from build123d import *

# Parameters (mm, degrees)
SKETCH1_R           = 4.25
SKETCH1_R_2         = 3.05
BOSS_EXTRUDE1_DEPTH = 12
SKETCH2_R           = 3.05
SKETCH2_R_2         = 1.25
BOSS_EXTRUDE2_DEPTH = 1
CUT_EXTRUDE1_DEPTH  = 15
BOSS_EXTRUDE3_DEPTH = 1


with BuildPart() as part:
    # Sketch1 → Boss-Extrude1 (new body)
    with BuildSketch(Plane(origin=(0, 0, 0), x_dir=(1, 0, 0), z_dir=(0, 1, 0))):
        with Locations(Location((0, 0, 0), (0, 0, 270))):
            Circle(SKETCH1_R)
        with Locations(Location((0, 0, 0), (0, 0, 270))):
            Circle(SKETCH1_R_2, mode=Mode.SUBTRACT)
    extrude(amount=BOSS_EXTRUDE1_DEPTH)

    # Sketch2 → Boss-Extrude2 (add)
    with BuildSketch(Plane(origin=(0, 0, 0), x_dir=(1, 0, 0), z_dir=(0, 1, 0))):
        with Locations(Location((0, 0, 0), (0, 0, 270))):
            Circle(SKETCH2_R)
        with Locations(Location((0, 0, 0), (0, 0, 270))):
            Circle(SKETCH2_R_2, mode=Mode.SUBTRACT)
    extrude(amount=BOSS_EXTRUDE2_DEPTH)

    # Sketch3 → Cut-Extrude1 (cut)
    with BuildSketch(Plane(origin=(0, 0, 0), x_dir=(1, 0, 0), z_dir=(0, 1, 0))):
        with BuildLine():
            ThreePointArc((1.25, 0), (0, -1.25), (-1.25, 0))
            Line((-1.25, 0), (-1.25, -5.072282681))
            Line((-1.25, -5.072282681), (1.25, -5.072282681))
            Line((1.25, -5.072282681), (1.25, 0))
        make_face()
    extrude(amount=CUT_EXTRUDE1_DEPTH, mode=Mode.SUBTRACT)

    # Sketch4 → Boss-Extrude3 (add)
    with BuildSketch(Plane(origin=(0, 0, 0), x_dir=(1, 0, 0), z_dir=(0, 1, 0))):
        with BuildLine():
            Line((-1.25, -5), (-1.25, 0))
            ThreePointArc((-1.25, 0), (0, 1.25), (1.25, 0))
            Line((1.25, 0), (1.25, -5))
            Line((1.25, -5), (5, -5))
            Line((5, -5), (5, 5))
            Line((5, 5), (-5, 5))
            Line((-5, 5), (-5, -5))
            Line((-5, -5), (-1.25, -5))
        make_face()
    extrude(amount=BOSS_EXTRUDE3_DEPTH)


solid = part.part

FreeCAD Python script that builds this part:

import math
import FreeCAD as App
import Part
import Sketcher

V = App.Vector
Q = App.Units.Quantity

doc = App.newDocument("Part")
params = doc.addObject("Spreadsheet::Sheet", "Params")
for row, (alias, value) in enumerate([
    ("sketch1_diameter", "8.5 mm"),
    ("sketch1_diameter2", "6.1 mm"),
    ("pad1_length", "12 mm"),
    ("sketch2_diameter", "6.1 mm"),
    ("sketch2_diameter2", "2.5 mm"),
    ("pad2_length", "1 mm"),
    ("sketch3_radius", "1.25 mm"),
    ("pocket1_length", "15 mm"),
    ("sketch4_width", "10 mm"),
    ("sketch4_radius", "1.25 mm"),
    ("pad3_length", "1 mm"),
], start=1):
    params.set(f"A{row}", alias)
    params.set(f"B{row}", "=" + value)
    params.setAlias(f"B{row}", alias)

body = doc.addObject("PartDesign::Body", "Body")

# Sketch on XZ plane
sketch1 = body.newObject("Sketcher::SketchObject", "Sketch")
sketch1.AttachmentSupport = (doc.getObject("XZ_Plane"), [""])
sketch1.MapMode = "FlatFace"
sketch1.addGeometry(Part.Circle(V(0, 0, 0), V(0, 0, 1), 4.2), False)
sketch1.addGeometry(Part.Circle(V(0, 0, 0), V(0, 0, 1), 3), False)
sketch1.addConstraint(Sketcher.Constraint("Coincident", 0, 3, -1, 1))
sketch1.addConstraint(Sketcher.Constraint("Coincident", 1, 3, -1, 1))
sketch1.addConstraint(Sketcher.Constraint("Diameter", 0, Q("8.5 mm")))
sketch1.addConstraint(Sketcher.Constraint("Diameter", 1, Q("6.1 mm")))
sketch1.setExpression("Constraints[2]", "Params.sketch1_diameter")
sketch1.setExpression("Constraints[3]", "Params.sketch1_diameter2")
pad1 = body.newObject("PartDesign::Pad", "Pad")
pad1.Profile = sketch1
pad1.setExpression("Length", "Params.pad1_length")
pad1.Reversed = True

# Sketch on XZ plane
sketch2 = body.newObject("Sketcher::SketchObject", "Sketch001")
sketch2.AttachmentSupport = (doc.getObject("XZ_Plane"), [""])
sketch2.MapMode = "FlatFace"
sketch2.addGeometry(Part.Circle(V(0, 0, 0), V(0, 0, 1), 3), False)
sketch2.addGeometry(Part.Circle(V(0, 0, 0), V(0, 0, 1), 1.2), False)
sketch2.addConstraint(Sketcher.Constraint("Coincident", 0, 3, -1, 1))
sketch2.addConstraint(Sketcher.Constraint("Coincident", 1, 3, -1, 1))
sketch2.addConstraint(Sketcher.Constraint("Diameter", 0, Q("6.1 mm")))
sketch2.addConstraint(Sketcher.Constraint("Diameter", 1, Q("2.5 mm")))
sketch2.setExpression("Constraints[2]", "Params.sketch2_diameter")
sketch2.setExpression("Constraints[3]", "Params.sketch2_diameter2")
pad2 = body.newObject("PartDesign::Pad", "Pad001")
pad2.Profile = sketch2
pad2.setExpression("Length", "Params.pad2_length")
pad2.Reversed = True

# Sketch on XZ plane
sketch3 = body.newObject("Sketcher::SketchObject", "Sketch002")
sketch3.AttachmentSupport = (doc.getObject("XZ_Plane"), [""])
sketch3.MapMode = "FlatFace"
sketch3.addGeometry(Part.ArcOfCircle(Part.Circle(V(0, 0, 0), V(0, 0, 1), 1.2), math.radians(0), math.radians(180)), False)
sketch3.addGeometry(Part.LineSegment(V(-1.2, 0, 0), V(-1.2, 5.1, 0)), False)
sketch3.addGeometry(Part.LineSegment(V(-1.2, 5.1, 0), V(1.2, 5.1, 0)), False)
sketch3.addGeometry(Part.LineSegment(V(1.2, 5.1, 0), V(1.2, 0, 0)), False)
sketch3.addConstraint(Sketcher.Constraint("Tangent", 0, 2, 1, 1))
sketch3.addConstraint(Sketcher.Constraint("Coincident", 1, 2, 2, 1))
sketch3.addConstraint(Sketcher.Constraint("Coincident", 2, 2, 3, 1))
sketch3.addConstraint(Sketcher.Constraint("Tangent", 3, 2, 0, 1))
sketch3.addConstraint(Sketcher.Constraint("Vertical", 1))
sketch3.addConstraint(Sketcher.Constraint("Horizontal", 2))
sketch3.addConstraint(Sketcher.Constraint("Vertical", 3))
sketch3.addConstraint(Sketcher.Constraint("Coincident", 0, 3, -1, 1))
sketch3.addConstraint(Sketcher.Constraint("Radius", 0, Q("1.25 mm")))
sketch3.addConstraint(Sketcher.Constraint("DistanceY", 1, 1, 1, 2, Q("5.072283 mm")))
sketch3.setExpression("Constraints[8]", "Params.sketch3_radius")
pocket1 = body.newObject("PartDesign::Pocket", "Pocket")
pocket1.Profile = sketch3
pocket1.setExpression("Length", "Params.pocket1_length")

# Sketch on XZ plane
sketch4 = body.newObject("Sketcher::SketchObject", "Sketch003")
sketch4.AttachmentSupport = (doc.getObject("XZ_Plane"), [""])
sketch4.MapMode = "FlatFace"
sketch4.addGeometry(Part.LineSegment(V(-1.2, 5, 0), V(-1.2, 0, 0)), False)
sketch4.addGeometry(Part.ArcOfCircle(Part.Circle(V(0, 0, 0), V(0, 0, 1), 1.2), math.radians(180), math.radians(360)), False)
sketch4.addGeometry(Part.LineSegment(V(1.2, 0, 0), V(1.2, 5, 0)), False)
sketch4.addGeometry(Part.LineSegment(V(1.2, 5, 0), V(5, 5, 0)), False)
sketch4.addGeometry(Part.LineSegment(V(5, 5, 0), V(5, -5, 0)), False)
sketch4.addGeometry(Part.LineSegment(V(5, -5, 0), V(-5, -5, 0)), False)
sketch4.addGeometry(Part.LineSegment(V(-5, -5, 0), V(-5, 5, 0)), False)
sketch4.addGeometry(Part.LineSegment(V(-5, 5, 0), V(-1.2, 5, 0)), False)
sketch4.addConstraint(Sketcher.Constraint("Tangent", 0, 2, 1, 1))
sketch4.addConstraint(Sketcher.Constraint("Tangent", 1, 2, 2, 1))
sketch4.addConstraint(Sketcher.Constraint("Coincident", 2, 2, 3, 1))
sketch4.addConstraint(Sketcher.Constraint("Coincident", 3, 2, 4, 1))
sketch4.addConstraint(Sketcher.Constraint("Coincident", 4, 2, 5, 1))
sketch4.addConstraint(Sketcher.Constraint("Coincident", 5, 2, 6, 1))
sketch4.addConstraint(Sketcher.Constraint("Coincident", 6, 2, 7, 1))
sketch4.addConstraint(Sketcher.Constraint("Coincident", 7, 2, 0, 1))
sketch4.addConstraint(Sketcher.Constraint("Vertical", 0))
sketch4.addConstraint(Sketcher.Constraint("Vertical", 2))
sketch4.addConstraint(Sketcher.Constraint("Horizontal", 3))
sketch4.addConstraint(Sketcher.Constraint("Vertical", 4))
sketch4.addConstraint(Sketcher.Constraint("Horizontal", 5))
sketch4.addConstraint(Sketcher.Constraint("Vertical", 6))
sketch4.addConstraint(Sketcher.Constraint("Horizontal", 7))
sketch4.addConstraint(Sketcher.Constraint("Coincident", 1, 3, -1, 1))
sketch4.addConstraint(Sketcher.Constraint("Symmetric", 3, 2, 5, 2, -1, 1))
sketch4.addConstraint(Sketcher.Constraint("Horizontal", 3, 2, 6, 2))
sketch4.addConstraint(Sketcher.Constraint("Equal", 5, 4))
sketch4.addConstraint(Sketcher.Constraint("DistanceX", 5, 2, 5, 1, Q("10 mm")))
sketch4.addConstraint(Sketcher.Constraint("Radius", 1, Q("1.25 mm")))
sketch4.setExpression("Constraints[19]", "Params.sketch4_width")
sketch4.setExpression("Constraints[20]", "Params.sketch4_radius")
pad3 = body.newObject("PartDesign::Pad", "Pad002")
pad3.Profile = sketch4
pad3.setExpression("Length", "Params.pad3_length")
pad3.Reversed = True

doc.recompute()
